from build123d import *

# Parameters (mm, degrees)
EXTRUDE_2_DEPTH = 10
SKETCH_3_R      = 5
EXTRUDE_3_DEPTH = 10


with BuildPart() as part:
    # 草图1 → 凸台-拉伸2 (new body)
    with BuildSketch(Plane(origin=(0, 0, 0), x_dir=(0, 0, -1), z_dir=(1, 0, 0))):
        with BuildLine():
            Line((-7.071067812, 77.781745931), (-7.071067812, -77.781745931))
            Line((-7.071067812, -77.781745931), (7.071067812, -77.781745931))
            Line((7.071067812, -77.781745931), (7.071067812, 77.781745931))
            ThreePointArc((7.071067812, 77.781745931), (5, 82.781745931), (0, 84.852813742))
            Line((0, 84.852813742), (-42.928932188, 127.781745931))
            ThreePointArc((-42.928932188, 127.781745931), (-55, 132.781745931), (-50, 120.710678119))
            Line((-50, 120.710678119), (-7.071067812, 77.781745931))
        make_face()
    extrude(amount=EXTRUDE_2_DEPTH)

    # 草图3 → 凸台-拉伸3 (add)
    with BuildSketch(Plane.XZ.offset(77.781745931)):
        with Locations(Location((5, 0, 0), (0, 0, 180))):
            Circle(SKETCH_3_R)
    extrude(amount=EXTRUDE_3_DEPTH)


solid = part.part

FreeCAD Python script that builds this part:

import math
import FreeCAD as App
import Part
import Sketcher

V = App.Vector
Q = App.Units.Quantity

doc = App.newDocument("Part")
body = doc.addObject("PartDesign::Body", "Body")

# Sketch on YZ plane
sketch1 = body.newObject("Sketcher::SketchObject", "Sketch")
sketch1.AttachmentSupport = (doc.getObject("YZ_Plane"), [""])
sketch1.MapMode = "FlatFace"
sketch1.addGeometry(Part.LineSegment(V(78, 7, 0), V(-78, 7, 0)), False)
sketch1.addGeometry(Part.LineSegment(V(-78, 7, 0), V(-78, -7, 0)), False)
sketch1.addGeometry(Part.LineSegment(V(-78, -7, 0), V(78, -7, 0)), False)
sketch1.addGeometry(Part.ArcOfCircle(Part.Circle(V(78, 0, 0), V(0, 0, 1), 7), math.radians(-90), math.radians(0)), False)
sketch1.addGeometry(Part.LineSegment(V(85, 0, 0), V(128, 43, 0)), False)
sketch1.addGeometry(Part.ArcOfCircle(Part.Circle(V(128, 50, 0), V(0, 0, 1), 7), math.radians(-90), math.radians(180)), False)
sketch1.addGeometry(Part.LineSegment(V(121, 50, 0), V(78, 7, 0)), False)
sketch1.addConstraint(Sketcher.Constraint("Coincident", 0, 2, 1, 1))
sketch1.addConstraint(Sketcher.Constraint("Coincident", 1, 2, 2, 1))
sketch1.addConstraint(Sketcher.Constraint("Tangent", 2, 2, 3, 1))
sketch1.addConstraint(Sketcher.Constraint("Coincident", 3, 2, 4, 1))
sketch1.addConstraint(Sketcher.Constraint("Coincident", 4, 2, 5, 1))
sketch1.addConstraint(Sketcher.Constraint("Coincident", 5, 2, 6, 1))
sketch1.addConstraint(Sketcher.Constraint("Coincident", 6, 2, 0, 1))
sketch1.addConstraint(Sketcher.Constraint("Horizontal", 0))
sketch1.addConstraint(Sketcher.Constraint("Vertical", 1))
sketch1.addConstraint(Sketcher.Constraint("Horizontal", 2))
sketch1.addConstraint(Sketcher.Constraint("Equal", 3, 5))
sketch1.addConstraint(Sketcher.Constraint("Symmetric", 0, 2, 2, 2, -1, 1))
sketch1.addConstraint(Sketcher.Constraint("PointOnObject", 3, 3, -1))
sketch1.addConstraint(Sketcher.Constraint("PointOnObject", 3, 2, -1))
sketch1.addConstraint(Sketcher.Constraint("Parallel", 4, 6))
sketch1.addConstraint(Sketcher.Constraint("Vertical", 5, 3, 4, 2))
sketch1.addConstraint(Sketcher.Constraint("Vertical", 2, 2, 6, 2))
sketch1.addConstraint(Sketcher.Constraint("Angle", 4, Q("45 deg")))
sketch1.addConstraint(Sketcher.Constraint("DistanceY", -1, 1, 5, 3, Q("50 mm")))
sketch1.addConstraint(Sketcher.Constraint("Radius", 3, Q("7.071068 mm")))
sketch1.addConstraint(Sketcher.Constraint("DistanceX", 0, 2, 0, 1, Q("155.563492 mm")))
pad1 = body.newObject("PartDesign::Pad", "Pad")
pad1.Profile = sketch1
pad1.Length = 10

# Sketch on XZ plane
sketch2 = body.newObject("Sketcher::SketchObject", "Sketch001")
sketch2.AttachmentSupport = (doc.getObject("XZ_Plane"), [""])
sketch2.MapMode = "FlatFace"
sketch2.AttachmentOffset = App.Placement(V(0, 0, 77.781746), App.Rotation())
sketch2.addGeometry(Part.Circle(V(5, 0, 0), V(0, 0, 1), 5), False)
sketch2.addConstraint(Sketcher.Constraint("PointOnObject", 0, 3, -1))
sketch2.addConstraint(Sketcher.Constraint("Diameter", 0, Q("10 mm")))
sketch2.addConstraint(Sketcher.Constraint("DistanceX", -1, 1, 0, 3, Q("5 mm")))
pad2 = body.newObject("PartDesign::Pad", "Pad001")
pad2.Profile = sketch2
pad2.Length = 10

doc.recompute()
